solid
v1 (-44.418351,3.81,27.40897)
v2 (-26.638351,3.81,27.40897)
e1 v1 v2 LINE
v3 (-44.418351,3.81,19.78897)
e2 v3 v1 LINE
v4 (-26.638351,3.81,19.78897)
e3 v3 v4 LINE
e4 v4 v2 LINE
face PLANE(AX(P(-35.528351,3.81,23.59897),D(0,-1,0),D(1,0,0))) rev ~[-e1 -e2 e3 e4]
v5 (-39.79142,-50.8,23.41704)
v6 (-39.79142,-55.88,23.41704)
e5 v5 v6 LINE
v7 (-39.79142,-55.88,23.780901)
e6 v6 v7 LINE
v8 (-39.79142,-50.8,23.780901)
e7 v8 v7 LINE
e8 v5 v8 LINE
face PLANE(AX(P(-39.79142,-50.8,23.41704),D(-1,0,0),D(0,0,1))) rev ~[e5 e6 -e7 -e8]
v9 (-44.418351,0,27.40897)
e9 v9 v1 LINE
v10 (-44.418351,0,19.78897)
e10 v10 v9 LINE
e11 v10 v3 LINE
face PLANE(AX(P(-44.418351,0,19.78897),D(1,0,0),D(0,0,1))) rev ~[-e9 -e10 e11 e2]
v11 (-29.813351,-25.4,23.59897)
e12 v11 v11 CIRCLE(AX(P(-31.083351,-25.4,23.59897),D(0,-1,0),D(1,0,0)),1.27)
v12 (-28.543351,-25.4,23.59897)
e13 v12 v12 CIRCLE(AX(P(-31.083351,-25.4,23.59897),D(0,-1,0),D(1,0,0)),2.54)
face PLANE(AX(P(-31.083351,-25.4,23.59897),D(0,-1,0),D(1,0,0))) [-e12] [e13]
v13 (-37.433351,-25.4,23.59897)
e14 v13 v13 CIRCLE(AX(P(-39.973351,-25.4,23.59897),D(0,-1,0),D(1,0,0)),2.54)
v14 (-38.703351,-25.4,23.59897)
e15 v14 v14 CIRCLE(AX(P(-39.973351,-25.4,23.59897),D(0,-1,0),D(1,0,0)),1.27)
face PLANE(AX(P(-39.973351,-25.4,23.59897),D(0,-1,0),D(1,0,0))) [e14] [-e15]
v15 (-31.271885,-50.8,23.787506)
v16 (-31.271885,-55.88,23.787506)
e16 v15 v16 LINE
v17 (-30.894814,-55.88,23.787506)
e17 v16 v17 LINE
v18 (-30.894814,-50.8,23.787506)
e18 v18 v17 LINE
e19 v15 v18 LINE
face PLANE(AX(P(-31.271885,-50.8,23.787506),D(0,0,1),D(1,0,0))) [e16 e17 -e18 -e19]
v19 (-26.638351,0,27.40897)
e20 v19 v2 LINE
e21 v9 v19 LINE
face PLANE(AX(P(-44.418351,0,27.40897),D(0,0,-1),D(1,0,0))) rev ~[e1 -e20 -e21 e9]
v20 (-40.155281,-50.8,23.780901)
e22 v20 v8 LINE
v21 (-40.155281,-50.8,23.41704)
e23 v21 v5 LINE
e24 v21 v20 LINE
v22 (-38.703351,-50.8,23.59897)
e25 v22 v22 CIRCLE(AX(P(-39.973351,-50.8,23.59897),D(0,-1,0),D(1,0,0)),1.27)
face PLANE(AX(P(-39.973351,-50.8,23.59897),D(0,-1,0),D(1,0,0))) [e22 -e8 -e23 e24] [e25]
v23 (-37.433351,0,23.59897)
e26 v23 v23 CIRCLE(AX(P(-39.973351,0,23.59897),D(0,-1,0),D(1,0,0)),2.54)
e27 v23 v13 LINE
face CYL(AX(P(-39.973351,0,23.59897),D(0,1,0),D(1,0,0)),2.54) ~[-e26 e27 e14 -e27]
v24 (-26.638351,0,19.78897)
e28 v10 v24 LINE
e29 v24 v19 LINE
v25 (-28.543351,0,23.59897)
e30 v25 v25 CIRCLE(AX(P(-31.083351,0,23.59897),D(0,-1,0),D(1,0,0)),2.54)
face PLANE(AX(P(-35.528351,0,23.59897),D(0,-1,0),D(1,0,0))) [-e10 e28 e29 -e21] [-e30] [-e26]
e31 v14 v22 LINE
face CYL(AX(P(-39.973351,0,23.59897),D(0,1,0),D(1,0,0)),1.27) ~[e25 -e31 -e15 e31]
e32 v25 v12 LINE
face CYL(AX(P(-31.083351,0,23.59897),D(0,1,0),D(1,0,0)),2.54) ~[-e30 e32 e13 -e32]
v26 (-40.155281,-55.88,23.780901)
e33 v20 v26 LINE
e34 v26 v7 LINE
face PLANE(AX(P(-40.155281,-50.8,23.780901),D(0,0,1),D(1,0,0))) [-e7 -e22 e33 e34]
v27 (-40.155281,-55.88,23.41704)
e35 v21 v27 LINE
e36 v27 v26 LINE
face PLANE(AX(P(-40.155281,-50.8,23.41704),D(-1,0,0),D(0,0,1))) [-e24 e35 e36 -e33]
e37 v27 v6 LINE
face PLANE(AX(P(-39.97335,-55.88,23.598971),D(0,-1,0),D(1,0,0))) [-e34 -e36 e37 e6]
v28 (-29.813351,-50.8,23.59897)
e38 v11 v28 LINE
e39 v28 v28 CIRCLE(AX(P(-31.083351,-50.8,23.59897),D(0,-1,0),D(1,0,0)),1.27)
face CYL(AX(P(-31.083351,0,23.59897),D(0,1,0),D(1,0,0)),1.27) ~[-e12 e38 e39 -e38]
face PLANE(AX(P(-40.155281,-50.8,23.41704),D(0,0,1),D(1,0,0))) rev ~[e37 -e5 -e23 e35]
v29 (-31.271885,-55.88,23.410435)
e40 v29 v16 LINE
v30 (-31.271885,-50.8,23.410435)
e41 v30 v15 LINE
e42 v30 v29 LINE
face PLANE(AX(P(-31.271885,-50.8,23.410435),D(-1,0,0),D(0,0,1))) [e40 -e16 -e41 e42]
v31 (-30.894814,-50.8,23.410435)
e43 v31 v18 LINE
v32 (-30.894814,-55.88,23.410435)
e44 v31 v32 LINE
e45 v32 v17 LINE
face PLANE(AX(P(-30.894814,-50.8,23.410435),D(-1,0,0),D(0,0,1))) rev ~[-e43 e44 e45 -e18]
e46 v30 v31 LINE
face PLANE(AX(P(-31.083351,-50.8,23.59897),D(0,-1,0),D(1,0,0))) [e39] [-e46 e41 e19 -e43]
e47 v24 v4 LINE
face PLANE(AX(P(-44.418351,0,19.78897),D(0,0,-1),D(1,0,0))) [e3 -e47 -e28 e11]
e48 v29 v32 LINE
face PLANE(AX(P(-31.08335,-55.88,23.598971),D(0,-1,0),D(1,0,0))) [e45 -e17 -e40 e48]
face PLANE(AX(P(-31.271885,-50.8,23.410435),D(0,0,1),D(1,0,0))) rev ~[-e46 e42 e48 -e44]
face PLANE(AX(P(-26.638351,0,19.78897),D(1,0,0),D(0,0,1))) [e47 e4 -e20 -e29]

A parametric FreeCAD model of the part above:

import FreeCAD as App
import Part
import Sketcher

V = App.Vector
Q = App.Units.Quantity

doc = App.newDocument("Part")
body = doc.addObject("PartDesign::Body", "Body")

sketch1 = doc.addObject("Sketcher::SketchObject", "Sketch")
body.addObject(sketch1)
sketch1.AttachmentSupport = (doc.XZ_Plane, [""])
sketch1.MapMode = "FlatFace"
sketch1.addGeometry([
    Part.LineSegment(V(-44, 27, 0), V(-44, 20, 0)),
    Part.LineSegment(V(-44, 20, 0), V(-27, 20, 0)),
    Part.LineSegment(V(-27, 20, 0), V(-27, 27, 0)),
    Part.LineSegment(V(-27, 27, 0), V(-44, 27, 0)),
], False)
sketch1.addConstraint([
    Sketcher.Constraint("Coincident", 0, 2, 1, 1),
    Sketcher.Constraint("Coincident", 1, 2, 2, 1),
    Sketcher.Constraint("Coincident", 2, 2, 3, 1),
    Sketcher.Constraint("Coincident", 3, 2, 0, 1),
    Sketcher.Constraint("Vertical", 0),
    Sketcher.Constraint("Horizontal", 1),
    Sketcher.Constraint("Vertical", 2),
    Sketcher.Constraint("Horizontal", 3),
    Sketcher.Constraint("DistanceX", 1, 1, 1, 2, Q("0.7 in")),
    Sketcher.Constraint("DistanceY", 0, 2, 0, 1, Q("0.3 in")),
    Sketcher.Constraint("DistanceX", 0, 2, -1, 1, Q("44.418351 mm")),
    Sketcher.Constraint("DistanceY", -1, 1, 0, 2, Q("19.78897 mm")),
])
pad1 = doc.addObject("PartDesign::Pad", "Pad")
body.addObject(pad1)
pad1.Profile = sketch1
pad1.Length = Q("0.15 in")
pad1.Reversed = True

sketch2 = doc.addObject("Sketcher::SketchObject", "Sketch001")
body.addObject(sketch2)
sketch2.AttachmentSupport = (doc.XZ_Plane, [""])
sketch2.MapMode = "FlatFace"
sketch2.addGeometry([
    Part.Circle(V(-40, 23.6, 0), V(0, 0, 1), 1.3),
    Part.Circle(V(-31.1, 23.6, 0), V(0, 0, 1), 1.3),
], False)
sketch2.addConstraint([
    Sketcher.Constraint("Equal", 0, 1),
    Sketcher.Constraint("Horizontal", 0, 3, 1, 3),
    Sketcher.Constraint("Diameter", 0, Q("0.1 in")),
    Sketcher.Constraint("DistanceX", 0, 3, 1, 3, Q("0.35 in")),
    Sketcher.Constraint("DistanceX", 0, 3, -1, 1, Q("39.973351 mm")),
    Sketcher.Constraint("DistanceY", -1, 1, 0, 3, Q("23.59897 mm")),
])
pad2 = doc.addObject("PartDesign::Pad", "Pad001")
body.addObject(pad2)
pad2.Profile = sketch2
pad2.Length = Q("2 in")

sketch3 = doc.addObject("Sketcher::SketchObject", "Sketch002")
body.addObject(sketch3)
sketch3.AttachmentSupport = (doc.XZ_Plane, [""])
sketch3.MapMode = "FlatFace"
sketch3.addGeometry([
    Part.Circle(V(-40, 23.6, 0), V(0, 0, 1), 2.5),
    Part.Circle(V(-40, 23.6, 0), V(0, 0, 1), 1.3),
    Part.Circle(V(-31.1, 23.6, 0), V(0, 0, 1), 2.5),
    Part.Circle(V(-31.1, 23.6, 0), V(0, 0, 1), 1.3),
], False)
sketch3.addConstraint([
    Sketcher.Constraint("Coincident", 1, 3, 0, 3),
    Sketcher.Constraint("Coincident", 3, 3, 2, 3),
    Sketcher.Constraint("Equal", 0, 2),
    Sketcher.Constraint("Equal", 1, 3),
    Sketcher.Constraint("Horizontal", 1, 3, 2, 3),
    Sketcher.Constraint("Diameter", 0, Q("0.2 in")),
    Sketcher.Constraint("Diameter", 1, Q("0.1 in")),
    Sketcher.Constraint("DistanceX", 0, 3, 2, 3, Q("0.35 in")),
    Sketcher.Constraint("DistanceX", 0, 3, -1, 1, Q("39.973351 mm")),
    Sketcher.Constraint("DistanceY", -1, 1, 0, 3, Q("23.59897 mm")),
])
pad3 = doc.addObject("PartDesign::Pad", "Pad002")
body.addObject(pad3)
pad3.Profile = sketch3
pad3.Length = Q("1 in")

sketch4 = doc.addObject("Sketcher::SketchObject", "Sketch003")
body.addObject(sketch4)
sketch4.AttachmentSupport = (doc.XZ_Plane, [""])
sketch4.MapMode = "FlatFace"
sketch4.AttachmentOffset = App.Placement(V(0, 0, 2 * 25.4), App.Rotation())
sketch4.addGeometry([
    Part.LineSegment(V(-40.16, 23.78, 0), V(-40.16, 23.42, 0)),
    Part.LineSegment(V(-40.16, 23.42, 0), V(-39.79, 23.42, 0)),
    Part.LineSegment(V(-39.79, 23.42, 0), V(-39.79, 23.78, 0)),
    Part.LineSegment(V(-39.79, 23.78, 0), V(-40.16, 23.78, 0)),
], False)
sketch4.addConstraint([
    Sketcher.Constraint("Coincident", 0, 2, 1, 1),
    Sketcher.Constraint("Coincident", 1, 2, 2, 1),
    Sketcher.Constraint("Coincident", 2, 2, 3, 1),
    Sketcher.Constraint("Coincident", 3, 2, 0, 1),
    Sketcher.Constraint("Vertical", 0),
    Sketcher.Constraint("Horizontal", 1),
    Sketcher.Constraint("Vertical", 2),
    Sketcher.Constraint("Horizontal", 3),
    Sketcher.Constraint("Equal", 3, 0),
    Sketcher.Constraint("DistanceX", 1, 1, 1, 2, Q("0.363861 mm")),
    Sketcher.Constraint("DistanceY", -1, 1, 2, 2, Q("23.780901 mm")),
    Sketcher.Constraint("DistanceX", 0, 2, -1, 1, Q("40.155281 mm")),
])
pad4 = doc.addObject("PartDesign::Pad", "Pad003")
body.addObject(pad4)
pad4.Profile = sketch4
pad4.Length = Q("0.2 in")

sketch5 = doc.addObject("Sketcher::SketchObject", "Sketch004")
body.addObject(sketch5)
sketch5.AttachmentSupport = (doc.XZ_Plane, [""])
sketch5.MapMode = "FlatFace"
sketch5.AttachmentOffset = App.Placement(V(0, 0, 2 * 25.4), App.Rotation())
sketch5.addGeometry([
    Part.LineSegment(V(-31.27, 23.79, 0), V(-31.27, 23.41, 0)),
    Part.LineSegment(V(-31.27, 23.41, 0), V(-30.89, 23.41, 0)),
    Part.LineSegment(V(-30.89, 23.41, 0), V(-30.89, 23.79, 0)),
    Part.LineSegment(V(-30.89, 23.79, 0), V(-31.27, 23.79, 0)),
], False)
sketch5.addConstraint([
    Sketcher.Constraint("Coincident", 0, 2, 1, 1),
    Sketcher.Constraint("Coincident", 1, 2, 2, 1),
    Sketcher.Constraint("Coincident", 2, 2, 3, 1),
    Sketcher.Constraint("Coincident", 3, 2, 0, 1),
    Sketcher.Constraint("Vertical", 0),
    Sketcher.Constraint("Horizontal", 1),
    Sketcher.Constraint("Vertical", 2),
    Sketcher.Constraint("Horizontal", 3),
    Sketcher.Constraint("Equal", 3, 0),
    Sketcher.Constraint("DistanceX", 1, 1, 1, 2, Q("0.377071 mm")),
    Sketcher.Constraint("DistanceX", 0, 2, -1, 1, Q("31.271885 mm")),
    Sketcher.Constraint("DistanceY", -1, 1, 0, 2, Q("23.410435 mm")),
])
pad5 = doc.addObject("PartDesign::Pad", "Pad004")
body.addObject(pad5)
pad5.Profile = sketch5
pad5.Length = Q("0.2 in")

doc.recompute()
